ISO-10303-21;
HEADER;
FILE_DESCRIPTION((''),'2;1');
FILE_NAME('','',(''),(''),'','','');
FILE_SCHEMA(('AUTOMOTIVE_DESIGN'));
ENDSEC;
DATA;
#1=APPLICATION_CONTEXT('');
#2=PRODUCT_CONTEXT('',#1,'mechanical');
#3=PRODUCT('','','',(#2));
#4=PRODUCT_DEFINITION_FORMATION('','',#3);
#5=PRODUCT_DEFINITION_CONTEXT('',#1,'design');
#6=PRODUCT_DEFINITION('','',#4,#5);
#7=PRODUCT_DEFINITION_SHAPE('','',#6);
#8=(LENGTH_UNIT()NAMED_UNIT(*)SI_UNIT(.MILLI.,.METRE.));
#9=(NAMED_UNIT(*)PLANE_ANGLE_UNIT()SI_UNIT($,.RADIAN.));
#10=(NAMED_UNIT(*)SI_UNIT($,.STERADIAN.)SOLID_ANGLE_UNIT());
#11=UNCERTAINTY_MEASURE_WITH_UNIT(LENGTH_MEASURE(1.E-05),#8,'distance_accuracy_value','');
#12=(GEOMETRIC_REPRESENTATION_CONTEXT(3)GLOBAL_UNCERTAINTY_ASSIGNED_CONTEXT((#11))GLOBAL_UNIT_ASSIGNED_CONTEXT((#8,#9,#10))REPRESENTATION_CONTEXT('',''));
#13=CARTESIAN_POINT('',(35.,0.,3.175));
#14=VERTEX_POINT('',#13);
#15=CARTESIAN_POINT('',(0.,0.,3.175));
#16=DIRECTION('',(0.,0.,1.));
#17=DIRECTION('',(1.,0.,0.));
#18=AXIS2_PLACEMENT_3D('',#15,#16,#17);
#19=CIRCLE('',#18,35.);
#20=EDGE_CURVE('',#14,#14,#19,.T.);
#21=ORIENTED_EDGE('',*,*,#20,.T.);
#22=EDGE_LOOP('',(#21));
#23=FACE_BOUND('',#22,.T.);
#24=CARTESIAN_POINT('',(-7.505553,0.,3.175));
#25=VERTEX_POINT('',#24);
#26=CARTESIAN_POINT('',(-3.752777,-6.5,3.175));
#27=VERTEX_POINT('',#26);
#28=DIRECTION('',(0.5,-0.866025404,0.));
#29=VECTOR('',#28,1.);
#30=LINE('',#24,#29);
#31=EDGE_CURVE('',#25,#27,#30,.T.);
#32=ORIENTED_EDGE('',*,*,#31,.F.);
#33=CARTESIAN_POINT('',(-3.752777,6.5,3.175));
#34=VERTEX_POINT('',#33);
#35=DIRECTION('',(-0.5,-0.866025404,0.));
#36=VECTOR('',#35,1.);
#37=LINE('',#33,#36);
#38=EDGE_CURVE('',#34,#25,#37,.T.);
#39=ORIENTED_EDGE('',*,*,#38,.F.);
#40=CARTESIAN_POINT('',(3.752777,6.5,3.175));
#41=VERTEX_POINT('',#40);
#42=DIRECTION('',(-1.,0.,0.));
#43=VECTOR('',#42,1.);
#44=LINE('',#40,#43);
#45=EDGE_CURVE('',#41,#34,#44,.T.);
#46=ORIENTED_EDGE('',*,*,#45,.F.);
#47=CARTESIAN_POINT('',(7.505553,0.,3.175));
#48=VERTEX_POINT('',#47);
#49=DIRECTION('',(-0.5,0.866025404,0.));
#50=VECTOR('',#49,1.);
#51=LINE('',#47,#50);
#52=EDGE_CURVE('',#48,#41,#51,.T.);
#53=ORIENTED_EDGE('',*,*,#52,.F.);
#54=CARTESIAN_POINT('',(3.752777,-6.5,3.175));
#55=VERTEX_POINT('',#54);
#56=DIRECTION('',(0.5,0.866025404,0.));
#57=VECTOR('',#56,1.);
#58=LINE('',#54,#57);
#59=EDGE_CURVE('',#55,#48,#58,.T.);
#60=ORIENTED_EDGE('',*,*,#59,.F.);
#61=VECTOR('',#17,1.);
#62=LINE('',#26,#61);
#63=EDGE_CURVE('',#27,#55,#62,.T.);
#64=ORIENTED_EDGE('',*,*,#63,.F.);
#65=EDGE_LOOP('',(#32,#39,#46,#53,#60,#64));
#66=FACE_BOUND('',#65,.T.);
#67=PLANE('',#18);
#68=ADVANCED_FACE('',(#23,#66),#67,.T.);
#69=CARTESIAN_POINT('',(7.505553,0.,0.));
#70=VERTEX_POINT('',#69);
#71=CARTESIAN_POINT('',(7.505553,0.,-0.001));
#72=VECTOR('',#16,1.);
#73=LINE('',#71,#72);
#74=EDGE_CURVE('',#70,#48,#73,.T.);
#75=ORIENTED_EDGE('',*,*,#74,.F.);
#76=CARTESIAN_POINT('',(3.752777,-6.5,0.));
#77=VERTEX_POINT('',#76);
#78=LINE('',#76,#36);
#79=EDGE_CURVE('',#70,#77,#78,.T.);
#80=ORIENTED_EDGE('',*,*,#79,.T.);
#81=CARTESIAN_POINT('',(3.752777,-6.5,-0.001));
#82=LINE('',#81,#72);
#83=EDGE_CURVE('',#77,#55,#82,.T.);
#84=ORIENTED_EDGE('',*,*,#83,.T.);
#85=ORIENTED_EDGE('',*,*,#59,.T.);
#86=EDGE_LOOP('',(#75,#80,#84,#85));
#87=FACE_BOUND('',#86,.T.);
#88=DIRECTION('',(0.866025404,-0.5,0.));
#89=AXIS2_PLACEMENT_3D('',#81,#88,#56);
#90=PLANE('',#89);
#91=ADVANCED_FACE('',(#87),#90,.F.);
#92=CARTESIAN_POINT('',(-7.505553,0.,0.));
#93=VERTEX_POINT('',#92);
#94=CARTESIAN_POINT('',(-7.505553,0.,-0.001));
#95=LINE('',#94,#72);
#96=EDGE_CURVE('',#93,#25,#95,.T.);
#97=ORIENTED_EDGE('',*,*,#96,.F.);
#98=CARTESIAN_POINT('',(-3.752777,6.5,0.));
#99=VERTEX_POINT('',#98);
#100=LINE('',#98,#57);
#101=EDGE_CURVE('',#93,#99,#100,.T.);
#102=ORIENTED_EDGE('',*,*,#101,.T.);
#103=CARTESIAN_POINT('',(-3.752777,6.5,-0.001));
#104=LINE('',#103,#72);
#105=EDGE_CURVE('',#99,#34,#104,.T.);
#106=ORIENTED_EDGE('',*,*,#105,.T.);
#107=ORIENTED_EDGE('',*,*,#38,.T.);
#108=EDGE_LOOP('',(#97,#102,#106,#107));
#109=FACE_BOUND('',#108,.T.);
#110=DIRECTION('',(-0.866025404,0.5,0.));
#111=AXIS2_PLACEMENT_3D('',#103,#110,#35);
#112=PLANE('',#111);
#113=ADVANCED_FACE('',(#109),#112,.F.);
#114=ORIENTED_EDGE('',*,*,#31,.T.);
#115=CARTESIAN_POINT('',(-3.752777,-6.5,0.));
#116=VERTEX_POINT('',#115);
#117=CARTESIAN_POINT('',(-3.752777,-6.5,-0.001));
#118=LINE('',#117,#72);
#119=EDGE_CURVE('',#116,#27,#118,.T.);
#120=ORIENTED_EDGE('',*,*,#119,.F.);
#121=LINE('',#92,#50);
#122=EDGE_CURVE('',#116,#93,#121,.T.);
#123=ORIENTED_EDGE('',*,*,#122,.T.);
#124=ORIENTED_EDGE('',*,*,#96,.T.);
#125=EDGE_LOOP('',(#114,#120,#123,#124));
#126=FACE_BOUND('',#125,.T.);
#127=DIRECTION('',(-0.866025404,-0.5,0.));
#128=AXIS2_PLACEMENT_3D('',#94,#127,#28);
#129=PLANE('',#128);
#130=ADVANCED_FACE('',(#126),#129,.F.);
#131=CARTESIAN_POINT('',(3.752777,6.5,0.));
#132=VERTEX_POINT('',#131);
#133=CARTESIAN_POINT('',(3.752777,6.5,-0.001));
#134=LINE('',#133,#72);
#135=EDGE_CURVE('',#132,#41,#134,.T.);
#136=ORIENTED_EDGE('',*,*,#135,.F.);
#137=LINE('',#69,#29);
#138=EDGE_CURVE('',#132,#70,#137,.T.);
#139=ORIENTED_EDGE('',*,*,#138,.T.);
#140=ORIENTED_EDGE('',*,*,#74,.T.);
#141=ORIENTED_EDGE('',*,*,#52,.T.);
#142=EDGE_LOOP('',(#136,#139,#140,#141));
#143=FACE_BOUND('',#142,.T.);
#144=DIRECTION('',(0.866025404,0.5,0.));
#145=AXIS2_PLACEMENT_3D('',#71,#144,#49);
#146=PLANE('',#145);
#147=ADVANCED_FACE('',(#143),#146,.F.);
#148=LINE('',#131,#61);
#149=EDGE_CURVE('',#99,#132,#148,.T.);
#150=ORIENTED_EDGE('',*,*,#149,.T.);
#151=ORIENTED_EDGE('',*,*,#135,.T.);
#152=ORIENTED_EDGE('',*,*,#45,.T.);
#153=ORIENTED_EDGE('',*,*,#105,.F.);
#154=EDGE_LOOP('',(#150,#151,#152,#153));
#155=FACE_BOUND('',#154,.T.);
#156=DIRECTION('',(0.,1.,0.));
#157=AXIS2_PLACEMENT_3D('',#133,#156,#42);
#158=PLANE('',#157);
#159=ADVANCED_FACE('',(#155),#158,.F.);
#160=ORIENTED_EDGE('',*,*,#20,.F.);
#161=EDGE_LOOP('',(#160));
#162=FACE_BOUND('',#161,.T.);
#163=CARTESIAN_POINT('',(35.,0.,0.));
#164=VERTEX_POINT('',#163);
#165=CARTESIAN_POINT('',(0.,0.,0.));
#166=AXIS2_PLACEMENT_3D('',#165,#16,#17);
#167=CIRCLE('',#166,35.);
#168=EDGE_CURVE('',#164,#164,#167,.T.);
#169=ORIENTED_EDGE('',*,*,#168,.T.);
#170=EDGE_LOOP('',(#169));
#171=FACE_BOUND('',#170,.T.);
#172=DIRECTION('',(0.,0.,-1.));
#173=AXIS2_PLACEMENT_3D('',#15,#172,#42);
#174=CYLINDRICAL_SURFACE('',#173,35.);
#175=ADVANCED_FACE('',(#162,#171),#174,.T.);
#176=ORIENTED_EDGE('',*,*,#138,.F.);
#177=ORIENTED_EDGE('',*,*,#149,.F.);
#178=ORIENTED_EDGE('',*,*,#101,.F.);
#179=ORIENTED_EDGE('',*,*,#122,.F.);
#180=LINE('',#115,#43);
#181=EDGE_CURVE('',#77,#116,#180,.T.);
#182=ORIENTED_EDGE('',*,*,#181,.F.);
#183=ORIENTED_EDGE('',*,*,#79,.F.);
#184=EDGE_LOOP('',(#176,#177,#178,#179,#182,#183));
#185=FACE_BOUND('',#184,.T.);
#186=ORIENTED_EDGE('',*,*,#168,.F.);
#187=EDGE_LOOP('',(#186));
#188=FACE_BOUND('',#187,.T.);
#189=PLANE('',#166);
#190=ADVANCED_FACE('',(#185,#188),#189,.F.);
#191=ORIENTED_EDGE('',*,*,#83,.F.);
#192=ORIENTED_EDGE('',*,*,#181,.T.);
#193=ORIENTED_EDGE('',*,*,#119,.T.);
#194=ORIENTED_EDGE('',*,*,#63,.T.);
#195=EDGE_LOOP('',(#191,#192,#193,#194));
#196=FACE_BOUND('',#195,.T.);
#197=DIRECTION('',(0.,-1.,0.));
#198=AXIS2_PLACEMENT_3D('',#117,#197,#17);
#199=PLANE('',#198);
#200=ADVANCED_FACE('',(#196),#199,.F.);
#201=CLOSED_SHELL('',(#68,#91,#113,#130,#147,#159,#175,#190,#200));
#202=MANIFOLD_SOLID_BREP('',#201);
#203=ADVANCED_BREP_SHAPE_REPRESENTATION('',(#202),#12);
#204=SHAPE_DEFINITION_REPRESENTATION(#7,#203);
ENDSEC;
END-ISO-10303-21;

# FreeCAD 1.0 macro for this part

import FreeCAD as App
import Part
import Sketcher

V = App.Vector
Q = App.Units.Quantity


def add_polygon(sketch, points):
    """Adds a closed chain of lines whose ends are joined by coincident constraints."""
    first, n = sketch.GeometryCount, len(points)
    for a, b in zip(points, points[1:] + points[:1]):
        sketch.addGeometry(Part.LineSegment(App.Vector(*a, 0), App.Vector(*b, 0)), False)
    for i in range(n):
        sketch.addConstraint(Sketcher.Constraint("Coincident", first + i, 2, first + (i + 1) % n, 1))

doc = App.newDocument("Part")
body = doc.addObject("PartDesign::Body", "Body")

sketch1 = body.newObject("Sketcher::SketchObject", "Sketch")
sketch1.AttachmentSupport = (doc.getObject("XY_Plane"), [""])
sketch1.MapMode = "FlatFace"
sketch1.addGeometry(Part.Circle(V(0, 0, 0), V(0, 0, 1), 35), False)
sketch1.addConstraint([
    Sketcher.Constraint("Coincident", 0, 3, -1, 1),
    Sketcher.Constraint("Diameter", 0, Q("70 mm")),
])
pad1 = body.newObject("PartDesign::Pad", "Pad")
pad1.Profile = sketch1
pad1.Length = 3.175

sketch2 = body.newObject("Sketcher::SketchObject", "Sketch001")
sketch2.AttachmentSupport = (doc.getObject("XY_Plane"), [""])
sketch2.MapMode = "FlatFace"
sketch2.AttachmentOffset = App.Placement(V(0, 0, 3.175), App.Rotation())
add_polygon(sketch2, [(8, 0), (4, 6), (-4, 6), (-8, 0), (-4, -6), (4, -6)])
sketch2.addConstraint([
    Sketcher.Constraint("Horizontal", 1),
    Sketcher.Constraint("Horizontal", 4),
    Sketcher.Constraint("Symmetric", 0, 2, 3, 2, -1, 1),
    Sketcher.Constraint("Symmetric", 2, 2, 5, 2, -1, 1),
    Sketcher.Constraint("PointOnObject", 2, 2, -1),
    Sketcher.Constraint("Parallel", 2, 5),
    Sketcher.Constraint("Vertical", 1, 2, 3, 2),
    Sketcher.Constraint("Angle", 0, Q("120 deg")),
    Sketcher.Constraint("DistanceY", 3, 2, 1, 2, Q("13 mm")),
    Sketcher.Constraint("DistanceX", 1, 2, 1, 1, Q("7.505554 mm")),
])
pocket1 = body.newObject("PartDesign::Pocket", "Pocket")
pocket1.Profile = sketch2
pocket1.Type = "UpToFirst"

doc.recompute()
